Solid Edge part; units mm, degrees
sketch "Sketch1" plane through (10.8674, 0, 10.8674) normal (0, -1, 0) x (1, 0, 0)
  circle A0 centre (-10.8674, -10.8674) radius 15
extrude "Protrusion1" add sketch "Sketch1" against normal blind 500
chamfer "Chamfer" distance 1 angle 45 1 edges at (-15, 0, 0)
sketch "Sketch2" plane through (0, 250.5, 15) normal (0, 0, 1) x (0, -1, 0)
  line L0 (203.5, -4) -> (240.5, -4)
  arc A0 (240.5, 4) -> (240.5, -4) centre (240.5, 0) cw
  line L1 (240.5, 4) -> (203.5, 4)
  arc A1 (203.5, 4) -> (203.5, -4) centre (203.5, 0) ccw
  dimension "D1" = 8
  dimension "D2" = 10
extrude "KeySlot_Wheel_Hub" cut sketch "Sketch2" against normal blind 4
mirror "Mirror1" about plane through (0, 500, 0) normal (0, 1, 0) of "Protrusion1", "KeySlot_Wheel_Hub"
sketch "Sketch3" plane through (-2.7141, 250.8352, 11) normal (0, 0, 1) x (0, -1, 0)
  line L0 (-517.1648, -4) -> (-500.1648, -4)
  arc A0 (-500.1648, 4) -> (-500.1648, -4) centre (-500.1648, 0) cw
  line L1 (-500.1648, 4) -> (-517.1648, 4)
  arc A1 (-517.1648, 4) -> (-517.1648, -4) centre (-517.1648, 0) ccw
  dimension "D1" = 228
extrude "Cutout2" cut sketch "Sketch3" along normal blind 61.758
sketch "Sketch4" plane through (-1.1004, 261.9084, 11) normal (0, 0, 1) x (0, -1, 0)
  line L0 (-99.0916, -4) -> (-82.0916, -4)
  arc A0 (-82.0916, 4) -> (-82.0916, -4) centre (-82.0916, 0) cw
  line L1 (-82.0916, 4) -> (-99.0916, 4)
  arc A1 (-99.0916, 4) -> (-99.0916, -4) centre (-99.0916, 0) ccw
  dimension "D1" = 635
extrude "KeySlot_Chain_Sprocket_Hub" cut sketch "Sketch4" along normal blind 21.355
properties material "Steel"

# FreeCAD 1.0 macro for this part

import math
import FreeCAD as App
import Part
import Sketcher
from FreeCAD import Vector
Q = App.Units.Quantity


def edges_at(feature, points):
    """Names of the edges that pass closest to the given points."""
    edges = feature.Shape.Edges
    near = lambda p: min(range(len(edges)), key=lambda i: edges[i].distToShape(Part.Vertex(*p))[0])
    return sorted({f"Edge{near(p) + 1}" for p in points})

doc = App.newDocument("Part")
params = doc.addObject("Spreadsheet::Sheet", "Params")
for row, (alias, value) in enumerate([
    ("sketch1_diameter", "30 mm"),
    ("pad1_length", "500 mm"),
    ("chamfer_size", "1 mm"),
    ("sketch2_radius", "4 mm"),
    ("sketch2_height", "37 mm"),
    ("pocket1_length", "4 mm"),
    ("sketch3_radius", "4 mm"),
    ("sketch3_height", "17 mm"),
    ("pocket2_length", "61.758 mm"),
    ("sketch4_radius", "4 mm"),
    ("sketch4_height", "17 mm"),
    ("pocket3_length", "21.355 mm"),
], start=1):
    params.set(f"A{row}", alias)
    params.set(f"B{row}", "=" + value)
    params.setAlias(f"B{row}", alias)

body = doc.addObject("PartDesign::Body", "Body")

sketch1 = body.newObject("Sketcher::SketchObject", "Sketch")
sketch1.AttachmentSupport = (doc.getObject("XZ_Plane"), [""])
sketch1.MapMode = "FlatFace"
sketch1.addGeometry(Part.Circle(Vector(0, 0, 0), Vector(0, 0, 1), 15), False)
sketch1.addConstraint(Sketcher.Constraint("Coincident", 0, 3, -1, 1))
sketch1.addConstraint(Sketcher.Constraint("Diameter", 0, Q("30 mm")))
sketch1.setExpression("Constraints[1]", "Params.sketch1_diameter")
pad1 = body.newObject("PartDesign::Pad", "Pad")
pad1.Profile = sketch1
pad1.setExpression("Length", "Params.pad1_length")
pad1.Reversed = True
doc.recompute()

chamfer = body.newObject("PartDesign::Chamfer", "Chamfer")
chamfer.Base = (pad1, edges_at(pad1, [(-15, 0, 0)]))
chamfer.setExpression("Size", "Params.chamfer_size")

sketch2 = body.newObject("Sketcher::SketchObject", "Sketch001")
sketch2.AttachmentSupport = (doc.getObject("XY_Plane"), [""])
sketch2.MapMode = "FlatFace"
sketch2.AttachmentOffset = App.Placement(Vector(0, 0, 15), App.Rotation())
sketch2.addGeometry(Part.ArcOfCircle(Part.Circle(Vector(0, 47, 0), Vector(0, 0, 1), 4), math.radians(0), math.radians(180)), False)
sketch2.addGeometry(Part.LineSegment(Vector(-4, 47, 0), Vector(-4, 10, 0)), False)
sketch2.addGeometry(Part.ArcOfCircle(Part.Circle(Vector(0, 10, 0), Vector(0, 0, 1), 4), math.radians(180), math.radians(360)), False)
sketch2.addGeometry(Part.LineSegment(Vector(4, 10, 0), Vector(4, 47, 0)), False)
sketch2.addConstraint(Sketcher.Constraint("Tangent", 0, 2, 1, 1))
sketch2.addConstraint(Sketcher.Constraint("Tangent", 1, 2, 2, 1))
sketch2.addConstraint(Sketcher.Constraint("Tangent", 2, 2, 3, 1))
sketch2.addConstraint(Sketcher.Constraint("Tangent", 3, 2, 0, 1))
sketch2.addConstraint(Sketcher.Constraint("Vertical", 1))
sketch2.addConstraint(Sketcher.Constraint("Vertical", 3))
sketch2.addConstraint(Sketcher.Constraint("PointOnObject", 0, 3, -2))
sketch2.addConstraint(Sketcher.Constraint("Radius", 0, Q("4 mm")))
sketch2.addConstraint(Sketcher.Constraint("DistanceY", 1, 2, 1, 1, Q("37 mm")))
sketch2.addConstraint(Sketcher.Constraint("DistanceY", -1, 1, 0, 3, Q("47 mm")))
sketch2.setExpression("Constraints[7]", "Params.sketch2_radius")
sketch2.setExpression("Constraints[8]", "Params.sketch2_height")
pocket1 = body.newObject("PartDesign::Pocket", "Pocket")
pocket1.Profile = sketch2
pocket1.setExpression("Length", "Params.pocket1_length")
doc.recompute()

datumplane = body.newObject("PartDesign::Plane", "DatumPlane")
datumplane.AttachmentSupport = (doc.getObject("XZ_Plane"), [""])
datumplane.MapMode = "FlatFace"
datumplane.AttachmentOffset = App.Placement(Vector(0, 0, -500), App.Rotation())
mirrored = body.newObject("PartDesign::Mirrored", "Mirrored")
mirrored.Originals = [pad1, pocket1]
mirrored.MirrorPlane = (datumplane, [""])
body.Tip = mirrored

sketch3 = body.newObject("Sketcher::SketchObject", "Sketch002")
sketch3.AttachmentSupport = (doc.getObject("XY_Plane"), [""])
sketch3.MapMode = "FlatFace"
sketch3.AttachmentOffset = App.Placement(Vector(0, 0, 11), App.Rotation())
sketch3.addGeometry(Part.ArcOfCircle(Part.Circle(Vector(-2.7141, 768, 0), Vector(0, 0, 1), 4), math.radians(0), math.radians(180)), False)
sketch3.addGeometry(Part.LineSegment(Vector(-6.7141, 768, 0), Vector(-6.7141, 751, 0)), False)
sketch3.addGeometry(Part.ArcOfCircle(Part.Circle(Vector(-2.7141, 751, 0), Vector(0, 0, 1), 4), math.radians(180), math.radians(360)), False)
sketch3.addGeometry(Part.LineSegment(Vector(1.2859, 751, 0), Vector(1.2859, 768, 0)), False)
sketch3.addConstraint(Sketcher.Constraint("Tangent", 0, 2, 1, 1))
sketch3.addConstraint(Sketcher.Constraint("Tangent", 1, 2, 2, 1))
sketch3.addConstraint(Sketcher.Constraint("Tangent", 2, 2, 3, 1))
sketch3.addConstraint(Sketcher.Constraint("Tangent", 3, 2, 0, 1))
sketch3.addConstraint(Sketcher.Constraint("Vertical", 1))
sketch3.addConstraint(Sketcher.Constraint("Vertical", 3))
sketch3.addConstraint(Sketcher.Constraint("Radius", 0, Q("4 mm")))
sketch3.addConstraint(Sketcher.Constraint("DistanceY", 1, 2, 1, 1, Q("17 mm")))
sketch3.addConstraint(Sketcher.Constraint("DistanceY", -1, 1, 0, 3, Q("768 mm")))
sketch3.addConstraint(Sketcher.Constraint("DistanceX", 0, 3, -1, 1, Q("2.714 mm")))
sketch3.setExpression("Constraints[6]", "Params.sketch3_radius")
sketch3.setExpression("Constraints[7]", "Params.sketch3_height")
pocket2 = body.newObject("PartDesign::Pocket", "Pocket001")
pocket2.Profile = sketch3
pocket2.setExpression("Length", "Params.pocket2_length")
pocket2.Reversed = True

sketch4 = body.newObject("Sketcher::SketchObject", "Sketch003")
sketch4.AttachmentSupport = (doc.getObject("XY_Plane"), [""])
sketch4.MapMode = "FlatFace"
sketch4.AttachmentOffset = App.Placement(Vector(0, 0, 11), App.Rotation())
sketch4.addGeometry(Part.ArcOfCircle(Part.Circle(Vector(-1.1004, 361, 0), Vector(0, 0, 1), 4), math.radians(0), math.radians(180)), False)
sketch4.addGeometry(Part.LineSegment(Vector(-5.1004, 361, 0), Vector(-5.1004, 344, 0)), False)
sketch4.addGeometry(Part.ArcOfCircle(Part.Circle(Vector(-1.1004, 344, 0), Vector(0, 0, 1), 4), math.radians(180), math.radians(360)), False)
sketch4.addGeometry(Part.LineSegment(Vector(2.8996, 344, 0), Vector(2.8996, 361, 0)), False)
sketch4.addConstraint(Sketcher.Constraint("Tangent", 0, 2, 1, 1))
sketch4.addConstraint(Sketcher.Constraint("Tangent", 1, 2, 2, 1))
sketch4.addConstraint(Sketcher.Constraint("Tangent", 2, 2, 3, 1))
sketch4.addConstraint(Sketcher.Constraint("Tangent", 3, 2, 0, 1))
sketch4.addConstraint(Sketcher.Constraint("Vertical", 1))
sketch4.addConstraint(Sketcher.Constraint("Vertical", 3))
sketch4.addConstraint(Sketcher.Constraint("Radius", 0, Q("4 mm")))
sketch4.addConstraint(Sketcher.Constraint("DistanceY", 1, 2, 1, 1, Q("17 mm")))
sketch4.addConstraint(Sketcher.Constraint("DistanceY", -1, 1, 0, 3, Q("361 mm")))
sketch4.addConstraint(Sketcher.Constraint("DistanceX", 0, 3, -1, 1, Q("1.1004 mm")))
sketch4.setExpression("Constraints[6]", "Params.sketch4_radius")
sketch4.setExpression("Constraints[7]", "Params.sketch4_height")
pocket3 = body.newObject("PartDesign::Pocket", "Pocket002")
pocket3.Profile = sketch4
pocket3.setExpression("Length", "Params.pocket3_length")
pocket3.Reversed = True

doc.recompute()
